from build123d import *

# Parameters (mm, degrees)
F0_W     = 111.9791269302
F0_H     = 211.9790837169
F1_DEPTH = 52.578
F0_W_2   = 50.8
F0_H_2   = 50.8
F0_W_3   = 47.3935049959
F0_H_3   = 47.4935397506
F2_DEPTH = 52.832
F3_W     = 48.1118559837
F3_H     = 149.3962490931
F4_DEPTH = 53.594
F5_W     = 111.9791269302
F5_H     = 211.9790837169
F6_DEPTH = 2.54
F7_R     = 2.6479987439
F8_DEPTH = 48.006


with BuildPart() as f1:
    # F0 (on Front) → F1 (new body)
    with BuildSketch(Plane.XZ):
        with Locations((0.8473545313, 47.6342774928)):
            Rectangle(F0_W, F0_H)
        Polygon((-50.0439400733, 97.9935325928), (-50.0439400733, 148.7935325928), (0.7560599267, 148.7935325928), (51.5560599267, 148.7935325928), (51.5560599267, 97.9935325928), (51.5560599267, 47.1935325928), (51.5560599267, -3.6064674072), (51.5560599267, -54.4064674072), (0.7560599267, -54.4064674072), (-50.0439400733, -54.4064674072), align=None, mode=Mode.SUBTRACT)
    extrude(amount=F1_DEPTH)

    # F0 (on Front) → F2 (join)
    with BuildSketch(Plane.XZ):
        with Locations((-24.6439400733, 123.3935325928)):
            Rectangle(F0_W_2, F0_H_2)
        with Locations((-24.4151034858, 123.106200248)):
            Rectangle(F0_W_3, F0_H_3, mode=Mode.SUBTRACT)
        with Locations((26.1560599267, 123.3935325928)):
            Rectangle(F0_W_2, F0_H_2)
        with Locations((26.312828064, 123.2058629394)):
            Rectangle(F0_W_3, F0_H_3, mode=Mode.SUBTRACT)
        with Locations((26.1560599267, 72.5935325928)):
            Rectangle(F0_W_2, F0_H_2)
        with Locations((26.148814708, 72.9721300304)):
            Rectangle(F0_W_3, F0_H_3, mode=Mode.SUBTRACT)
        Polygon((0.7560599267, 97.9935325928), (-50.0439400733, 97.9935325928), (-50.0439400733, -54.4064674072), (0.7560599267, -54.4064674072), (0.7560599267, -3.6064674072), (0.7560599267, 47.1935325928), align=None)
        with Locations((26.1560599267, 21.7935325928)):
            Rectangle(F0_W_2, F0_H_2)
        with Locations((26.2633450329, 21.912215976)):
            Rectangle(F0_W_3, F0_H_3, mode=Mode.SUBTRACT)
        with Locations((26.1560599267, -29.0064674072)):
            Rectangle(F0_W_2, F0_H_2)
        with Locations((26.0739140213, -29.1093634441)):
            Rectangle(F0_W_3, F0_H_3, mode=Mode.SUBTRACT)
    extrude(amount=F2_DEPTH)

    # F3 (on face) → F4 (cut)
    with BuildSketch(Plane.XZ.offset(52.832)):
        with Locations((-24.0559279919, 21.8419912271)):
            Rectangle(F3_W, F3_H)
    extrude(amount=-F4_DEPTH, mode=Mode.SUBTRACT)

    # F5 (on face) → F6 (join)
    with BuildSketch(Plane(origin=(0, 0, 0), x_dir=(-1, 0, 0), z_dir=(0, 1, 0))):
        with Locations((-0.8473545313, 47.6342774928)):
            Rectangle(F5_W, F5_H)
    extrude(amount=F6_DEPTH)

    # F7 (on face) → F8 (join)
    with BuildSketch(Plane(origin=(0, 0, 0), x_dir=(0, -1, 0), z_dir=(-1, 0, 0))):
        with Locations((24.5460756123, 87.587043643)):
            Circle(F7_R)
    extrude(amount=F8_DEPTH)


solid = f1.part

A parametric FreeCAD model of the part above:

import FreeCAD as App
import Part
import Sketcher
from FreeCAD import Vector
Q = App.Units.Quantity

doc = App.newDocument("Part")
body = doc.addObject("PartDesign::Body", "Body")

# Sketch on XZ plane
sketch1 = body.newObject("Sketcher::SketchObject", "Sketch")
sketch1.AttachmentSupport = (doc.getObject("XZ_Plane"), [""])
sketch1.MapMode = "FlatFace"
sketch1.addGeometry([
    Part.LineSegment(Vector(-55, 154, 0), Vector(-55, -58, 0)),  # 0
    Part.LineSegment(Vector(-55, -58, 0), Vector(57, -58, 0)),  # 1
    Part.LineSegment(Vector(57, -58, 0), Vector(57, 154, 0)),  # 2
    Part.LineSegment(Vector(57, 154, 0), Vector(-55, 154, 0)),  # 3
    Part.LineSegment(Vector(-50, -54, 0), Vector(-50, 149, 0)),  # 4
    Part.LineSegment(Vector(-50, 149, 0), Vector(52, 149, 0)),  # 5
    Part.LineSegment(Vector(52, 149, 0), Vector(52, -54, 0)),  # 6
    Part.LineSegment(Vector(52, -54, 0), Vector(-50, -54, 0)),  # 7
], False)
sketch1.addConstraint([
    Sketcher.Constraint("Coincident", 0, 2, 1, 1),
    Sketcher.Constraint("Coincident", 1, 2, 2, 1),
    Sketcher.Constraint("Coincident", 2, 2, 3, 1),
    Sketcher.Constraint("Coincident", 3, 2, 0, 1),
    Sketcher.Constraint("Coincident", 4, 2, 5, 1),
    Sketcher.Constraint("Coincident", 5, 2, 6, 1),
    Sketcher.Constraint("Coincident", 6, 2, 7, 1),
    Sketcher.Constraint("Coincident", 7, 2, 4, 1),
    Sketcher.Constraint("Vertical", 0),
    Sketcher.Constraint("Horizontal", 1),
    Sketcher.Constraint("Vertical", 2),
    Sketcher.Constraint("Horizontal", 3),
    Sketcher.Constraint("Vertical", 4),
    Sketcher.Constraint("Horizontal", 5),
    Sketcher.Constraint("Vertical", 6),
    Sketcher.Constraint("Horizontal", 7),
    Sketcher.Constraint("DistanceX", 5, 1, 5, 2, Q("4 in")),
    Sketcher.Constraint("DistanceY", 4, 1, 4, 2, Q("8 in")),
    Sketcher.Constraint("DistanceX", 1, 1, 1, 2, 111.979127),
    Sketcher.Constraint("DistanceY", 0, 2, 0, 1, 211.979084),
    Sketcher.Constraint("DistanceX", 0, 2, -1, 1, 55.142209),
    Sketcher.Constraint("DistanceY", -1, 1, 2, 2, 153.623819),
    Sketcher.Constraint("DistanceX", 4, 2, -1, 1, 50.04394),
    Sketcher.Constraint("DistanceY", -1, 1, 4, 2, 148.793533),
])
pad1 = body.newObject("PartDesign::Pad", "Pad")
pad1.Profile = sketch1
pad1.Length = Q("2.07 in")

# Sketch on XZ plane
sketch2 = body.newObject("Sketcher::SketchObject", "Sketch001")
sketch2.AttachmentSupport = (doc.getObject("XZ_Plane"), [""])
sketch2.MapMode = "FlatFace"
sketch2.addGeometry([
    Part.LineSegment(Vector(-50, 149, 0), Vector(-50, -54, 0)),  # 0
    Part.LineSegment(Vector(-50, -54, 0), Vector(52, -54, 0)),  # 1
    Part.LineSegment(Vector(52, -54, 0), Vector(52, 149, 0)),  # 2
    Part.LineSegment(Vector(52, 149, 0), Vector(-50, 149, 0)),  # 3
    Part.LineSegment(Vector(50, -53, 0), Vector(2, -53, 0)),  # 4
    Part.LineSegment(Vector(2, -53, 0), Vector(2, -5, 0)),  # 5
    Part.LineSegment(Vector(2, -5, 0), Vector(50, -5, 0)),  # 6
    Part.LineSegment(Vector(50, -5, 0), Vector(50, -53, 0)),  # 7
    Part.LineSegment(Vector(50, -2, 0), Vector(3, -2, 0)),  # 8
    Part.LineSegment(Vector(3, -2, 0), Vector(3, 46, 0)),  # 9
    Part.LineSegment(Vector(3, 46, 0), Vector(50, 46, 0)),  # 10
    Part.LineSegment(Vector(50, 46, 0), Vector(50, -2, 0)),  # 11
    Part.LineSegment(Vector(-1, 99, 0), Vector(-48, 99, 0)),  # 12
    Part.LineSegment(Vector(-48, 99, 0), Vector(-48, 147, 0)),  # 13
    Part.LineSegment(Vector(-48, 147, 0), Vector(-1, 147, 0)),  # 14
    Part.LineSegment(Vector(-1, 147, 0), Vector(-1, 99, 0)),  # 15
    Part.LineSegment(Vector(50, 49, 0), Vector(2, 49, 0)),  # 16
    Part.LineSegment(Vector(2, 49, 0), Vector(2, 97, 0)),  # 17
    Part.LineSegment(Vector(2, 97, 0), Vector(50, 97, 0)),  # 18
    Part.LineSegment(Vector(50, 97, 0), Vector(50, 49, 0)),  # 19
    Part.LineSegment(Vector(50, 99, 0), Vector(3, 99, 0)),  # 20
    Part.LineSegment(Vector(3, 99, 0), Vector(3, 147, 0)),  # 21
    Part.LineSegment(Vector(3, 147, 0), Vector(50, 147, 0)),  # 22
    Part.LineSegment(Vector(50, 147, 0), Vector(50, 99, 0)),  # 23
], False)
sketch2.addConstraint([
    Sketcher.Constraint("Coincident", 0, 2, 1, 1),
    Sketcher.Constraint("Coincident", 1, 2, 2, 1),
    Sketcher.Constraint("Coincident", 2, 2, 3, 1),
    Sketcher.Constraint("Coincident", 3, 2, 0, 1),
    Sketcher.Constraint("Coincident", 4, 2, 5, 1),
    Sketcher.Constraint("Coincident", 5, 2, 6, 1),
    Sketcher.Constraint("Coincident", 6, 2, 7, 1),
    Sketcher.Constraint("Coincident", 7, 2, 4, 1),
    Sketcher.Constraint("Coincident", 8, 2, 9, 1),
    Sketcher.Constraint("Coincident", 9, 2, 10, 1),
    Sketcher.Constraint("Coincident", 10, 2, 11, 1),
    Sketcher.Constraint("Coincident", 11, 2, 8, 1),
    Sketcher.Constraint("Coincident", 12, 2, 13, 1),
    Sketcher.Constraint("Coincident", 13, 2, 14, 1),
    Sketcher.Constraint("Coincident", 14, 2, 15, 1),
    Sketcher.Constraint("Coincident", 15, 2, 12, 1),
    Sketcher.Constraint("Coincident", 16, 2, 17, 1),
    Sketcher.Constraint("Coincident", 17, 2, 18, 1),
    Sketcher.Constraint("Coincident", 18, 2, 19, 1),
    Sketcher.Constraint("Coincident", 19, 2, 16, 1),
    Sketcher.Constraint("Coincident", 20, 2, 21, 1),
    Sketcher.Constraint("Coincident", 21, 2, 22, 1),
    Sketcher.Constraint("Coincident", 22, 2, 23, 1),
    Sketcher.Constraint("Coincident", 23, 2, 20, 1),
    Sketcher.Constraint("Vertical", 0),
    Sketcher.Constraint("Horizontal", 1),
    Sketcher.Constraint("Vertical", 2),
    Sketcher.Constraint("Horizontal", 3),
    Sketcher.Constraint("Horizontal", 4),
    Sketcher.Constraint("Vertical", 5),
    Sketcher.Constraint("Horizontal", 6),
    Sketcher.Constraint("Vertical", 7),
    Sketcher.Constraint("Horizontal", 8),
    Sketcher.Constraint("Vertical", 9),
    Sketcher.Constraint("Horizontal", 10),
    Sketcher.Constraint("Vertical", 11),
    Sketcher.Constraint("Horizontal", 12),
    Sketcher.Constraint("Vertical", 13),
    Sketcher.Constraint("Horizontal", 14),
    Sketcher.Constraint("Vertical", 15),
    Sketcher.Constraint("Horizontal", 16),
    Sketcher.Constraint("Vertical", 17),
    Sketcher.Constraint("Horizontal", 18),
    Sketcher.Constraint("Vertical", 19),
    Sketcher.Constraint("Horizontal", 20),
    Sketcher.Constraint("Vertical", 21),
    Sketcher.Constraint("Horizontal", 22),
    Sketcher.Constraint("Vertical", 23),
    Sketcher.Constraint("Equal", 6, 8),
    Sketcher.Constraint("Equal", 10, 12),
    Sketcher.Constraint("Equal", 14, 16),
    Sketcher.Constraint("Equal", 18, 20),
    Sketcher.Constraint("Equal", 7, 9),
    Sketcher.Constraint("Equal", 11, 13),
    Sketcher.Constraint("Equal", 15, 17),
    Sketcher.Constraint("Equal", 19, 21),
    Sketcher.Constraint("DistanceX", 1, 1, 1, 2, Q("4 in")),
    Sketcher.Constraint("DistanceY", 0, 2, 0, 1, Q("8 in")),
    Sketcher.Constraint("DistanceY", 13, 2, 3, 2, Q("0.0764001 in")),
    Sketcher.Constraint("DistanceY", 5, 1, 5, 2, 47.49354),
    Sketcher.Constraint("DistanceY", -1, 1, 17, 2, 96.7189),
    Sketcher.Constraint("DistanceX", 4, 2, 1, 2, 49.178898),
    Sketcher.Constraint("DistanceX", 5, 2, 16, 2, 0.074901),
    Sketcher.Constraint("DistanceY", 21, 2, 2, 2, 1.8409),
    Sketcher.Constraint("DistanceX", 4, 2, 4, 1, 47.393505),
    Sketcher.Constraint("DistanceX", 0, 2, -1, 1, 50.04394),
    Sketcher.Constraint("DistanceY", -1, 1, 12, 2, 99.35943),
    Sketcher.Constraint("DistanceX", 14, 2, -1, 1, 0.718351),
    Sketcher.Constraint("DistanceX", -1, 1, 22, 2, 50.009581),
    Sketcher.Constraint("DistanceX", 5, 2, 8, 2, 0.189431),
    Sketcher.Constraint("DistanceY", 5, 2, 8, 2, 3.52804),
    Sketcher.Constraint("DistanceY", 4, 2, -1, 1, 52.856133),
])
pad2 = body.newObject("PartDesign::Pad", "Pad001")
pad2.Profile = sketch2
pad2.Length = Q("2.08 in")

# Sketch on XZ plane
sketch3 = body.newObject("Sketcher::SketchObject", "Sketch002")
sketch3.AttachmentSupport = (doc.getObject("XZ_Plane"), [""])
sketch3.MapMode = "FlatFace"
sketch3.AttachmentOffset = App.Placement(Vector(0, 0, 2.08 * 25.4), App.Rotation())
sketch3.addGeometry([
    Part.LineSegment(Vector(-48, 97, 0), Vector(-48, -53, 0)),
    Part.LineSegment(Vector(-48, -53, 0), Vector(0, -53, 0)),
    Part.LineSegment(Vector(0, -53, 0), Vector(0, 97, 0)),
    Part.LineSegment(Vector(0, 97, 0), Vector(-48, 97, 0)),
], False)
sketch3.addConstraint([
    Sketcher.Constraint("Coincident", 0, 2, 1, 1),
    Sketcher.Constraint("Coincident", 1, 2, 2, 1),
    Sketcher.Constraint("Coincident", 2, 2, 3, 1),
    Sketcher.Constraint("Coincident", 3, 2, 0, 1),
    Sketcher.Constraint("Vertical", 0),
    Sketcher.Constraint("Horizontal", 1),
    Sketcher.Constraint("Vertical", 2),
    Sketcher.Constraint("Horizontal", 3),
    Sketcher.Constraint("PointOnObject", 1, 2, -2),
    Sketcher.Constraint("DistanceY", 0, 2, 0, 1, 149.396249),
    Sketcher.Constraint("DistanceX", 1, 1, 1, 2, 48.111856),
    Sketcher.Constraint("DistanceY", 0, 2, -1, 1, 52.856133),
])
pocket1 = body.newObject("PartDesign::Pocket", "Pocket")
pocket1.Profile = sketch3
pocket1.Length = Q("2.11 in")

# Sketch on XZ plane
sketch4 = body.newObject("Sketcher::SketchObject", "Sketch003")
sketch4.AttachmentSupport = (doc.getObject("XZ_Plane"), [""])
sketch4.MapMode = "FlatFace"
sketch4.addGeometry([
    Part.LineSegment(Vector(57, 154, 0), Vector(57, -58, 0)),
    Part.LineSegment(Vector(57, -58, 0), Vector(-55, -58, 0)),
    Part.LineSegment(Vector(-55, -58, 0), Vector(-55, 154, 0)),
    Part.LineSegment(Vector(-55, 154, 0), Vector(57, 154, 0)),
], False)
sketch4.addConstraint([
    Sketcher.Constraint("Coincident", 0, 2, 1, 1),
    Sketcher.Constraint("Coincident", 1, 2, 2, 1),
    Sketcher.Constraint("Coincident", 2, 2, 3, 1),
    Sketcher.Constraint("Coincident", 3, 2, 0, 1),
    Sketcher.Constraint("Vertical", 0),
    Sketcher.Constraint("Horizontal", 1),
    Sketcher.Constraint("Vertical", 2),
    Sketcher.Constraint("Horizontal", 3),
    Sketcher.Constraint("DistanceX", 1, 2, 1, 1, 111.979127),
    Sketcher.Constraint("DistanceY", 0, 2, 0, 1, 211.979084),
    Sketcher.Constraint("DistanceX", 1, 2, -1, 1, 55.142209),
    Sketcher.Constraint("DistanceY", -1, 1, 2, 2, 153.623819),
])
pad3 = body.newObject("PartDesign::Pad", "Pad002")
pad3.Profile = sketch4
pad3.Length = Q("0.1 in")
pad3.Reversed = True

# Sketch on YZ plane
sketch5 = body.newObject("Sketcher::SketchObject", "Sketch004")
sketch5.AttachmentSupport = (doc.getObject("YZ_Plane"), [""])
sketch5.MapMode = "FlatFace"
sketch5.addGeometry(Part.Circle(Vector(-24.5, 87.6, 0), Vector(0, 0, 1), 2.6), False)
sketch5.addConstraint([
    Sketcher.Constraint("Diameter", 0, 5.295997),
    Sketcher.Constraint("DistanceX", 0, 3, -1, 1, 24.546076),
    Sketcher.Constraint("DistanceY", -1, 1, 0, 3, 87.587044),
])
pad4 = body.newObject("PartDesign::Pad", "Pad003")
pad4.Profile = sketch5
pad4.Length = Q("1.89 in")
pad4.Reversed = True

doc.recompute()
